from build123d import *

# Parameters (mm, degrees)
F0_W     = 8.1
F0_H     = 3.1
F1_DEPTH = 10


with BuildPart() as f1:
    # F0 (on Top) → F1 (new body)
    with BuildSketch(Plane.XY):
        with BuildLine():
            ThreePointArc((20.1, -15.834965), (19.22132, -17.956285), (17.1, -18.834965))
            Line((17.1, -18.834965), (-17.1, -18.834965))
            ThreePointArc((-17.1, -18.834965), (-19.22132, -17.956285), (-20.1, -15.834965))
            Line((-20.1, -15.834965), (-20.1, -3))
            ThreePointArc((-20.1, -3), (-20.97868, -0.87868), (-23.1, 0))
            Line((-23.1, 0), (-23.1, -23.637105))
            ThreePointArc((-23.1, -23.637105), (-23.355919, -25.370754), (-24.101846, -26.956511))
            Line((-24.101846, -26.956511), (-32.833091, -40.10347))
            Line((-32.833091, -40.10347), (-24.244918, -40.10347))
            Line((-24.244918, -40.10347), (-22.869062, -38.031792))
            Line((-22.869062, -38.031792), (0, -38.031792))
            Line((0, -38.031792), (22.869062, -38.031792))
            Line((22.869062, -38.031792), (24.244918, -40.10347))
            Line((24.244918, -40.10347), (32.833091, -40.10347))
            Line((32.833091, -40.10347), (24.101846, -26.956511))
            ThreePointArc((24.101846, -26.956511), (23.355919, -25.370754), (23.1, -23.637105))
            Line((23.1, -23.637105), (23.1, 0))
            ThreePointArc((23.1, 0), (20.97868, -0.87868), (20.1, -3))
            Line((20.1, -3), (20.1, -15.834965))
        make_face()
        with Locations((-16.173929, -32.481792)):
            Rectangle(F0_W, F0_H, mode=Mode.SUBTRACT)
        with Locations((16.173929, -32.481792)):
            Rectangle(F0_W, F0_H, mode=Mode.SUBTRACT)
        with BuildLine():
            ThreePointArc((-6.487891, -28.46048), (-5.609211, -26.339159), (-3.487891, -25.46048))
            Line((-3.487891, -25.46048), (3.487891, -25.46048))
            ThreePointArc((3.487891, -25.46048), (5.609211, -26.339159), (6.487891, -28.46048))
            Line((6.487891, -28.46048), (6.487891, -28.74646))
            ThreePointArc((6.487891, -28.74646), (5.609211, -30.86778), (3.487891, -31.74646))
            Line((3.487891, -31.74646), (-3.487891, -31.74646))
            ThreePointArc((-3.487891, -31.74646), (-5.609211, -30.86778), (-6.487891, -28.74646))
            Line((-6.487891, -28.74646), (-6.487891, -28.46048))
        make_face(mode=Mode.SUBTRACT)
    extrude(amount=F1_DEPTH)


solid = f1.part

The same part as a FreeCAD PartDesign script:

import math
import FreeCAD as App
import Part
import Sketcher
from FreeCAD import Vector
Q = App.Units.Quantity

doc = App.newDocument("Part")
params = doc.addObject("Spreadsheet::Sheet", "Params")
for row, (alias, value) in enumerate([
    ("sketch1_radius", "3.000001 mm"),
    ("sketch1_width", "34.2 mm"),
    ("sketch1_width2", "8.1 mm"),
    ("sketch1_height", "3.1 mm"),
    ("pad1_length", "10 mm"),
], start=1):
    params.set(f"A{row}", alias)
    params.set(f"B{row}", "=" + value)
    params.setAlias(f"B{row}", alias)

body = doc.addObject("PartDesign::Body", "Body")

# Sketch on XY plane
sketch1 = body.newObject("Sketcher::SketchObject", "Sketch")
sketch1.AttachmentSupport = (doc.getObject("XY_Plane"), [""])
sketch1.MapMode = "FlatFace"
sketch1.addGeometry([
    Part.ArcOfCircle(Part.Circle(Vector(17.1, -15.83, 0), Vector(0, 0, 1), 3), math.radians(-90), math.radians(0)),  # 0
    Part.LineSegment(Vector(17.1, -18.83, 0), Vector(-17.1, -18.83, 0)),  # 1
    Part.ArcOfCircle(Part.Circle(Vector(-17.1, -15.83, 0), Vector(0, 0, 1), 3), math.radians(-180), math.radians(-90)),  # 2
    Part.LineSegment(Vector(-20.1, -15.83, 0), Vector(-20.1, -3, 0)),  # 3
    Part.ArcOfCircle(Part.Circle(Vector(-23.1, -3, 0), Vector(0, 0, 1), 3), math.radians(0), math.radians(90)),  # 4
    Part.LineSegment(Vector(-23.1, 0, 0), Vector(-23.1, -23.64, 0)),  # 5
    Part.ArcOfCircle(Part.Circle(Vector(-29.1, -23.64, 0), Vector(0, 0, 1), 6), math.radians(-34), math.radians(0)),  # 6
    Part.LineSegment(Vector(-24.1, -26.96, 0), Vector(-32.83, -40.1, 0)),  # 7
    Part.LineSegment(Vector(-32.83, -40.1, 0), Vector(-24.24, -40.1, 0)),  # 8
    Part.LineSegment(Vector(-24.24, -40.1, 0), Vector(-22.87, -38.03, 0)),  # 9
    Part.LineSegment(Vector(-22.87, -38.03, 0), Vector(22.87, -38.03, 0)),  # 10
    Part.LineSegment(Vector(22.87, -38.03, 0), Vector(24.24, -40.1, 0)),  # 11
    Part.LineSegment(Vector(24.24, -40.1, 0), Vector(32.83, -40.1, 0)),  # 12
    Part.LineSegment(Vector(32.83, -40.1, 0), Vector(24.1, -26.96, 0)),  # 13
    Part.ArcOfCircle(Part.Circle(Vector(29.1, -23.64, 0), Vector(0, 0, 1), 6), math.radians(180), math.radians(214)),  # 14
    Part.LineSegment(Vector(23.1, -23.64, 0), Vector(23.1, 0, 0)),  # 15
    Part.ArcOfCircle(Part.Circle(Vector(23.1, -3, 0), Vector(0, 0, 1), 3), math.radians(90), math.radians(180)),  # 16
    Part.LineSegment(Vector(20.1, -3, 0), Vector(20.1, -15.83, 0)),  # 17
    Part.LineSegment(Vector(-12.12, -34.03, 0), Vector(-20.22, -34.03, 0)),  # 18
    Part.LineSegment(Vector(-20.22, -34.03, 0), Vector(-20.22, -30.93, 0)),  # 19
    Part.LineSegment(Vector(-20.22, -30.93, 0), Vector(-12.12, -30.93, 0)),  # 20
    Part.LineSegment(Vector(-12.12, -30.93, 0), Vector(-12.12, -34.03, 0)),  # 21
    Part.LineSegment(Vector(20.22, -34.03, 0), Vector(12.12, -34.03, 0)),  # 22
    Part.LineSegment(Vector(12.12, -34.03, 0), Vector(12.12, -30.93, 0)),  # 23
    Part.LineSegment(Vector(12.12, -30.93, 0), Vector(20.22, -30.93, 0)),  # 24
    Part.LineSegment(Vector(20.22, -30.93, 0), Vector(20.22, -34.03, 0)),  # 25
    Part.LineSegment(Vector(-6.49, -28.75, 0), Vector(-6.49, -28.46, 0)),  # 26
    Part.ArcOfCircle(Part.Circle(Vector(-3.49, -28.46, 0), Vector(0, 0, 1), 3), math.radians(90), math.radians(180)),  # 27
    Part.LineSegment(Vector(-3.49, -25.46, 0), Vector(3.49, -25.46, 0)),  # 28
    Part.ArcOfCircle(Part.Circle(Vector(3.49, -28.46, 0), Vector(0, 0, 1), 3), math.radians(0), math.radians(90)),  # 29
    Part.LineSegment(Vector(6.49, -28.46, 0), Vector(6.49, -28.75, 0)),  # 30
    Part.ArcOfCircle(Part.Circle(Vector(3.49, -28.75, 0), Vector(0, 0, 1), 3), math.radians(-90), math.radians(0)),  # 31
    Part.LineSegment(Vector(3.49, -31.75, 0), Vector(-3.49, -31.75, 0)),  # 32
    Part.ArcOfCircle(Part.Circle(Vector(-3.49, -28.75, 0), Vector(0, 0, 1), 3), math.radians(-180), math.radians(-90)),  # 33
], False)
sketch1.addConstraint([
    Sketcher.Constraint("Tangent", 0, 1, 1, 1),
    Sketcher.Constraint("Tangent", 1, 2, 2, 2),
    Sketcher.Constraint("Tangent", 2, 1, 3, 1),
    Sketcher.Constraint("Tangent", 3, 2, 4, 1),
    Sketcher.Constraint("Coincident", 4, 2, 5, 1),
    Sketcher.Constraint("Tangent", 5, 2, 6, 2),
    Sketcher.Constraint("Tangent", 6, 1, 7, 1),
    Sketcher.Constraint("Coincident", 7, 2, 8, 1),
    Sketcher.Constraint("Coincident", 8, 2, 9, 1),
    Sketcher.Constraint("Coincident", 9, 2, 10, 1),
    Sketcher.Constraint("Coincident", 10, 2, 11, 1),
    Sketcher.Constraint("Coincident", 11, 2, 12, 1),
    Sketcher.Constraint("Coincident", 12, 2, 13, 1),
    Sketcher.Constraint("Tangent", 13, 2, 14, 2),
    Sketcher.Constraint("Tangent", 14, 1, 15, 1),
    Sketcher.Constraint("Coincident", 15, 2, 16, 1),
    Sketcher.Constraint("Tangent", 16, 2, 17, 1),
    Sketcher.Constraint("Tangent", 17, 2, 0, 2),
    Sketcher.Constraint("Coincident", 18, 2, 19, 1),
    Sketcher.Constraint("Coincident", 19, 2, 20, 1),
    Sketcher.Constraint("Coincident", 20, 2, 21, 1),
    Sketcher.Constraint("Coincident", 21, 2, 18, 1),
    Sketcher.Constraint("Coincident", 22, 2, 23, 1),
    Sketcher.Constraint("Coincident", 23, 2, 24, 1),
    Sketcher.Constraint("Coincident", 24, 2, 25, 1),
    Sketcher.Constraint("Coincident", 25, 2, 22, 1),
    Sketcher.Constraint("Tangent", 26, 2, 27, 2),
    Sketcher.Constraint("Tangent", 27, 1, 28, 1),
    Sketcher.Constraint("Tangent", 28, 2, 29, 2),
    Sketcher.Constraint("Tangent", 29, 1, 30, 1),
    Sketcher.Constraint("Tangent", 30, 2, 31, 2),
    Sketcher.Constraint("Tangent", 31, 1, 32, 1),
    Sketcher.Constraint("Tangent", 32, 2, 33, 2),
    Sketcher.Constraint("Tangent", 33, 1, 26, 1),
    Sketcher.Constraint("Horizontal", 1),
    Sketcher.Constraint("Vertical", 3),
    Sketcher.Constraint("Vertical", 5),
    Sketcher.Constraint("Horizontal", 8),
    Sketcher.Constraint("Horizontal", 10),
    Sketcher.Constraint("Horizontal", 12),
    Sketcher.Constraint("Vertical", 15),
    Sketcher.Constraint("Vertical", 17),
    Sketcher.Constraint("Horizontal", 18),
    Sketcher.Constraint("Vertical", 19),
    Sketcher.Constraint("Horizontal", 20),
    Sketcher.Constraint("Vertical", 21),
    Sketcher.Constraint("Horizontal", 22),
    Sketcher.Constraint("Vertical", 23),
    Sketcher.Constraint("Horizontal", 24),
    Sketcher.Constraint("Vertical", 25),
    Sketcher.Constraint("Vertical", 26),
    Sketcher.Constraint("Horizontal", 28),
    Sketcher.Constraint("Vertical", 30),
    Sketcher.Constraint("Horizontal", 32),
    Sketcher.Constraint("Equal", 0, 2),
    Sketcher.Constraint("Equal", 2, 4),
    Sketcher.Constraint("Equal", 6, 14),
    Sketcher.Constraint("Equal", 4, 16),
    Sketcher.Constraint("Equal", 16, 27),
    Sketcher.Constraint("Equal", 27, 29),
    Sketcher.Constraint("Equal", 29, 31),
    Sketcher.Constraint("Equal", 31, 33),
    Sketcher.Constraint("Symmetric", 4, 2, 15, 2, -1, 1),
    Sketcher.Constraint("Symmetric", 4, 3, 16, 3, -2),
    Sketcher.Constraint("Symmetric", 8, 2, 11, 2, -2),
    Sketcher.Constraint("Symmetric", 6, 1, 13, 2, -2),
    Sketcher.Constraint("Symmetric", 21, 2, 22, 2, -2),
    Sketcher.Constraint("Symmetric", 19, 2, 24, 2, -2),
    Sketcher.Constraint("Parallel", 7, 9),
    Sketcher.Constraint("Parallel", 11, 13),
    Sketcher.Constraint("Vertical", 16, 3, 14, 1),
    Sketcher.Constraint("Radius", 0, Q("3.000001 mm")),
    Sketcher.Constraint("DistanceX", 1, 2, 1, 1, Q("34.2 mm")),
    Sketcher.Constraint("DistanceX", 18, 2, 18, 1, Q("8.1 mm")),
    Sketcher.Constraint("DistanceY", 19, 1, 19, 2, Q("3.1 mm")),
    Sketcher.Constraint("DistanceY", 9, 2, 18, 2, Q("4 mm")),
    Sketcher.Constraint("Radius", 6, Q("5.99999 mm")),
    Sketcher.Constraint("DistanceX", 28, 1, 28, 2, Q("6.975782 mm")),
    Sketcher.Constraint("DistanceY", 26, 1, 26, 2, Q("0.28598 mm")),
    Sketcher.Constraint("DistanceX", 31, 3, 14, 3, Q("25.6121 mm")),
    Sketcher.Constraint("DistanceX", 7, 2, 6, 3, Q("3.733101 mm")),
    Sketcher.Constraint("Distance", 7, Q("15.782179 mm")),
    Sketcher.Constraint("Distance", 9, Q("2.486932 mm")),
    Sketcher.Constraint("DistanceX", 8, 1, 8, 2, Q("8.588173 mm")),
    Sketcher.Constraint("DistanceY", 3, 1, 3, 2, Q("12.834965 mm")),
    Sketcher.Constraint("DistanceY", 5, 2, 5, 1, Q("23.637105 mm")),
    Sketcher.Constraint("DistanceY", 27, 3, -1, 1, Q("28.460479 mm")),
    Sketcher.Constraint("DistanceX", 18, 2, -1, 1, Q("20.223929 mm")),
])
sketch1.setExpression("Constraints[71]", "Params.sketch1_radius")
sketch1.setExpression("Constraints[72]", "Params.sketch1_width")
sketch1.setExpression("Constraints[73]", "Params.sketch1_width2")
sketch1.setExpression("Constraints[74]", "Params.sketch1_height")
pad1 = body.newObject("PartDesign::Pad", "Pad")
pad1.Profile = sketch1
pad1.setExpression("Length", "Params.pad1_length")

doc.recompute()
